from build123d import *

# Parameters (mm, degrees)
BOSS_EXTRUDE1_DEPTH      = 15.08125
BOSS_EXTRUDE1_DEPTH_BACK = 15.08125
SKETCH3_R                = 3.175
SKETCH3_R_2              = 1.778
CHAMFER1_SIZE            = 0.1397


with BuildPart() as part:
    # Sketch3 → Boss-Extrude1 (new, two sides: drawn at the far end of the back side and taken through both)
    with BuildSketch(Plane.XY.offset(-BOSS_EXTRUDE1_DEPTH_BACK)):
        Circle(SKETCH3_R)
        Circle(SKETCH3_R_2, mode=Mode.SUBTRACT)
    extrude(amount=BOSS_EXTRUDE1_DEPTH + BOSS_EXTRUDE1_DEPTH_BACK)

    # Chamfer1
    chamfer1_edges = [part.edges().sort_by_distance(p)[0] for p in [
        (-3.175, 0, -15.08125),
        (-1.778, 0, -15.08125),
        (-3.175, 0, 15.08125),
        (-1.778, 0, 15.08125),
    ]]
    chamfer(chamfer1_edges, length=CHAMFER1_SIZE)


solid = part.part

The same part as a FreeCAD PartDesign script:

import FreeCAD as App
import Part
import Sketcher

V = App.Vector
Q = App.Units.Quantity


def edges_at(feature, points):
    """Names of the edges that pass closest to the given points."""
    edges = feature.Shape.Edges
    near = lambda p: min(range(len(edges)), key=lambda i: edges[i].distToShape(Part.Vertex(*p))[0])
    return sorted({f"Edge{near(p) + 1}" for p in points})

doc = App.newDocument("Part")
body = doc.addObject("PartDesign::Body", "Body")

sketch1 = doc.addObject("Sketcher::SketchObject", "Sketch")
body.addObject(sketch1)
sketch1.AttachmentSupport = (doc.XY_Plane, [""])
sketch1.MapMode = "FlatFace"
sketch1.addGeometry([
    Part.Circle(V(0, 0, 0), V(0, 0, 1), 3.175),
    Part.Circle(V(0, 0, 0), V(0, 0, 1), 1.778),
], False)
sketch1.addConstraint([
    Sketcher.Constraint("Coincident", 0, 3, -1, 1),
    Sketcher.Constraint("Coincident", 1, 3, -1, 1),
    Sketcher.Constraint("Diameter", 0, Q("0.25 in")),
    Sketcher.Constraint("Diameter", 1, Q("0.14 in")),
])
pad1 = doc.addObject("PartDesign::Pad", "Pad")
body.addObject(pad1)
pad1.Profile = sketch1
pad1.Type = "TwoLengths"
pad1.Length = Q("0.59375 in")
pad1.Length2 = Q("0.59375 in")
doc.recompute()

chamfer = doc.addObject("PartDesign::Chamfer", "Chamfer")
body.addObject(chamfer)
chamfer.Base = (pad1, edges_at(pad1, [
    (-3.175, 0, -15.081),
    (-1.778, 0, -15.081),
    (-3.175, 0, 15.081),
    (-1.778, 0, 15.081),
]))
chamfer.Size = Q("0.0055 in")

doc.recompute()
